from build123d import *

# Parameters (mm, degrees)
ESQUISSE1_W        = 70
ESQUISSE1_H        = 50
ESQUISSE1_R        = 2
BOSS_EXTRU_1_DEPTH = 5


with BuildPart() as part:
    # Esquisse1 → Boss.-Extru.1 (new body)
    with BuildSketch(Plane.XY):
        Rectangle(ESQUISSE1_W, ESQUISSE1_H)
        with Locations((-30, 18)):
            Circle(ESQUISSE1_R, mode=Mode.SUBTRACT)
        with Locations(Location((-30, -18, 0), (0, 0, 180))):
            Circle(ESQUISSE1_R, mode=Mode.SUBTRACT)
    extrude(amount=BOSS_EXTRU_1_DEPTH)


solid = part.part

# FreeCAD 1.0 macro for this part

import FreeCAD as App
import Part
import Sketcher

doc = App.newDocument("Part")
body = doc.addObject("PartDesign::Body", "Body")

sketch1 = body.newObject("Sketcher::SketchObject", "Sketch")
sketch1.AttachmentSupport = (doc.getObject("XY_Plane"), [""])
sketch1.MapMode = "FlatFace"
sketch1.addGeometry([
    Part.LineSegment(App.Vector(-35, 25, 0), App.Vector(-35, -25, 0)),
    Part.LineSegment(App.Vector(-35, -25, 0), App.Vector(35, -25, 0)),
    Part.LineSegment(App.Vector(35, -25, 0), App.Vector(35, 25, 0)),
    Part.LineSegment(App.Vector(35, 25, 0), App.Vector(-35, 25, 0)),
    Part.Circle(App.Vector(-30, -18, 0), App.Vector(0, 0, 1), 2),
    Part.Circle(App.Vector(-30, 18, 0), App.Vector(0, 0, 1), 2),
], False)
sketch1.addConstraint([
    Sketcher.Constraint("Coincident", 0, 2, 1, 1),
    Sketcher.Constraint("Coincident", 1, 2, 2, 1),
    Sketcher.Constraint("Coincident", 2, 2, 3, 1),
    Sketcher.Constraint("Coincident", 3, 2, 0, 1),
    Sketcher.Constraint("Vertical", 0),
    Sketcher.Constraint("Horizontal", 1),
    Sketcher.Constraint("Vertical", 2),
    Sketcher.Constraint("Horizontal", 3),
    Sketcher.Constraint("Equal", 4, 5),
    Sketcher.Constraint("Symmetric", 0, 2, 2, 2, -1, 1),
    Sketcher.Constraint("Symmetric", 4, 3, 5, 3, -1),
    Sketcher.Constraint("Diameter", 4, 4.0),
    Sketcher.Constraint("DistanceX", 1, 1, 1, 2, 70.0),
    Sketcher.Constraint("DistanceY", 0, 2, 0, 1, 50.0),
    Sketcher.Constraint("DistanceX", 4, 3, -1, 1, 30.0),
    Sketcher.Constraint("DistanceY", 4, 3, -1, 1, 18.0),
])
pad1 = body.newObject("PartDesign::Pad", "Pad")
pad1.Profile = sketch1
pad1.Length = 5

doc.recompute()
